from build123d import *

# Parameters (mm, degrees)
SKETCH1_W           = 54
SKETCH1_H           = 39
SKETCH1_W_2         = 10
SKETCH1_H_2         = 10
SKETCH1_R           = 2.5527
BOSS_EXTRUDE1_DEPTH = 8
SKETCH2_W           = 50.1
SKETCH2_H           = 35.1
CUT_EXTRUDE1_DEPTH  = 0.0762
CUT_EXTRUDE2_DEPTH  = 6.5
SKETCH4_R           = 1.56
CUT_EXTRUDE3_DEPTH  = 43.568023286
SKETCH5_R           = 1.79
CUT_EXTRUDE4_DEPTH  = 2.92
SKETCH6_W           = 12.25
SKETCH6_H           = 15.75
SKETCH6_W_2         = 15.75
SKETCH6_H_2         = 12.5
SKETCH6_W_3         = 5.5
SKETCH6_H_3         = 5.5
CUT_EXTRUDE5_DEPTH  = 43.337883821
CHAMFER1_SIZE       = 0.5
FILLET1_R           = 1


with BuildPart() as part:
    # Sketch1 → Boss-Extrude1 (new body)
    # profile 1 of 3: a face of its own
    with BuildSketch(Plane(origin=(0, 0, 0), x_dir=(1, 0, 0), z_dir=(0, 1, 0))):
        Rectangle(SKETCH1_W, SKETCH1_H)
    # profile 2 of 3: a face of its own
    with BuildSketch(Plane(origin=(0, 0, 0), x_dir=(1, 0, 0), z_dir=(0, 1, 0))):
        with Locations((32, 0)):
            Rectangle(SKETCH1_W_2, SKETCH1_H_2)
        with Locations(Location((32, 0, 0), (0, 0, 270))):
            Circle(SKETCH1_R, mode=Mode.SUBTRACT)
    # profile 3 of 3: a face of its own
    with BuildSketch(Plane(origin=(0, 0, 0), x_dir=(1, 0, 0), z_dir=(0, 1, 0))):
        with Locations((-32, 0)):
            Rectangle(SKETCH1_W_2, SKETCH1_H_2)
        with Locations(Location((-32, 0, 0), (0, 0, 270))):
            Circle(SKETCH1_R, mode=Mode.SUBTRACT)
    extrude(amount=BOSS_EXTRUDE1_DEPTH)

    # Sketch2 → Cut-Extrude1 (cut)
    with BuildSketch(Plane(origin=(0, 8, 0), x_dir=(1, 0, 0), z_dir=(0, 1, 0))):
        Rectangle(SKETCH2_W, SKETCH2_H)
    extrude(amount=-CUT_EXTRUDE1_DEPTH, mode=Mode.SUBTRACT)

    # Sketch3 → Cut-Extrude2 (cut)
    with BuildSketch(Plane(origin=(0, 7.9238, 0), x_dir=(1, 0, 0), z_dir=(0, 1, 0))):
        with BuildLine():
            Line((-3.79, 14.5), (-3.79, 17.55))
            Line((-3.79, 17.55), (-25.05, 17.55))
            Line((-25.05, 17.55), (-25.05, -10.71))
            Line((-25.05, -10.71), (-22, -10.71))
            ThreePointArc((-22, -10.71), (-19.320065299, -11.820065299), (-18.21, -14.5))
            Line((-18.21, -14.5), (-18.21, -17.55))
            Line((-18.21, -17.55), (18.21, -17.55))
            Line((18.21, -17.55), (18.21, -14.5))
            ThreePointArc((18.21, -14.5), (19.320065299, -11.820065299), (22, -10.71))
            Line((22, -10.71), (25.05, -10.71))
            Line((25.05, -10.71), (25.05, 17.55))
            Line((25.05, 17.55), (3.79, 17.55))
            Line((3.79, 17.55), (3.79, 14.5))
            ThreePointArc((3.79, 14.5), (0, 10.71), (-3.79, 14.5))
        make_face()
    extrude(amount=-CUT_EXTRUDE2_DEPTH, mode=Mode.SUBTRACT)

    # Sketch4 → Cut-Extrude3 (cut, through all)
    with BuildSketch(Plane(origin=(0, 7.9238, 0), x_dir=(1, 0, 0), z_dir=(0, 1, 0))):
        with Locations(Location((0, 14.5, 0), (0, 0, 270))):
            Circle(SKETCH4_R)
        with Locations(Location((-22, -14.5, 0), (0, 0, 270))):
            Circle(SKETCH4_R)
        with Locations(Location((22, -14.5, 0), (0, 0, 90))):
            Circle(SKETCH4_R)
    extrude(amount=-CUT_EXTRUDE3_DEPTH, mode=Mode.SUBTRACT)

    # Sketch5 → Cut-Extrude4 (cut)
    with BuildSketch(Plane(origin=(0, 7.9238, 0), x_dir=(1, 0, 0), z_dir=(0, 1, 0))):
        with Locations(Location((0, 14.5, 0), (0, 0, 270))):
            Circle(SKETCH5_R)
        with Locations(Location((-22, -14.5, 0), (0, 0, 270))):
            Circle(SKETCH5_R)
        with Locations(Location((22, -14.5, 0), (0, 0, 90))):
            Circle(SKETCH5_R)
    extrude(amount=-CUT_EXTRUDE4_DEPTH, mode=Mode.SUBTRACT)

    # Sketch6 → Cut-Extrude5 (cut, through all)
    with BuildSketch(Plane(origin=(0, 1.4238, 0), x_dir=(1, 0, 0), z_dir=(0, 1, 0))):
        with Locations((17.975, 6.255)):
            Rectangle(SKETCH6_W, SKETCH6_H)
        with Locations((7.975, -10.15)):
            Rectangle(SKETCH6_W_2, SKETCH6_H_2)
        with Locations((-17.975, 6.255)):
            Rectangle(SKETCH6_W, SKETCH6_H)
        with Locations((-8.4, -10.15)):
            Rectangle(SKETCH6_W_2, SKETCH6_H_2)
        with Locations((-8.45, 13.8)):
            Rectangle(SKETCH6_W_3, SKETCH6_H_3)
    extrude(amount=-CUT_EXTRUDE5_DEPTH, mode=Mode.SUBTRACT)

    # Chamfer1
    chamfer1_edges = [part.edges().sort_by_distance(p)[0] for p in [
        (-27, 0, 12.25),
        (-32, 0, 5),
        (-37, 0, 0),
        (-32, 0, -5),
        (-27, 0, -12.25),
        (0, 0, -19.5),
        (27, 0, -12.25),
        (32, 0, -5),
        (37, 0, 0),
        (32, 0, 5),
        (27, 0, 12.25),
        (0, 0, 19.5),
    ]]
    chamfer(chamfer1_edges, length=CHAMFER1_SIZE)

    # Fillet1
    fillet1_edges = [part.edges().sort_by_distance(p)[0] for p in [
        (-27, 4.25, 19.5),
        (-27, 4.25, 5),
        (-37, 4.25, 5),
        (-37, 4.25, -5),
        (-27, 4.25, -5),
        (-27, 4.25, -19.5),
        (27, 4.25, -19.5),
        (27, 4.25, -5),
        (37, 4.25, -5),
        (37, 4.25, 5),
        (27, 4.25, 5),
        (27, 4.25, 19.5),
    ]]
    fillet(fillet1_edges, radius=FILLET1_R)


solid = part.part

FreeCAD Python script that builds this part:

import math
import FreeCAD as App
import Part
import Sketcher
Q = App.Units.Quantity


def edges_at(feature, points):
    """Names of the edges that pass closest to the given points."""
    edges = feature.Shape.Edges
    near = lambda p: min(range(len(edges)), key=lambda i: edges[i].distToShape(Part.Vertex(*p))[0])
    return sorted({f"Edge{near(p) + 1}" for p in points})


def add_polygon(sketch, points):
    """Adds a closed chain of lines whose ends are joined by coincident constraints."""
    first, n = sketch.GeometryCount, len(points)
    for a, b in zip(points, points[1:] + points[:1]):
        sketch.addGeometry(Part.LineSegment(App.Vector(*a, 0), App.Vector(*b, 0)), False)
    for i in range(n):
        sketch.addConstraint(Sketcher.Constraint("Coincident", first + i, 2, first + (i + 1) % n, 1))

doc = App.newDocument("Part")
params = doc.addObject("Spreadsheet::Sheet", "Params")
for row, (alias, value) in enumerate([
    ("sketch1_width", "54 mm"),
    ("sketch1_width2", "10 mm"),
    ("sketch1_height", "14.5 mm"),
    ("pad1_length", "8 mm"),
    ("sketch2_width", "50.1 mm"),
    ("sketch2_height", "35.1 mm"),
    ("pocket1_length", "0.0762 mm"),
    ("sketch3_radius", "3.79 mm"),
    ("sketch3_width", "21.26 mm"),
    ("pocket2_length", "6.5 mm"),
    ("sketch4_diameter", "3.12 mm"),
    ("sketch5_diameter", "3.58 mm"),
    ("pocket4_length", "2.92 mm"),
    ("sketch6_width", "5.5 mm"),
    ("sketch6_height", "12.5 mm"),
    ("sketch6_width2", "12.25 mm"),
    ("chamfer_size", "0.5 mm"),
    ("fillet_radius", "1 mm"),
], start=1):
    params.set(f"A{row}", alias)
    params.set(f"B{row}", "=" + value)
    params.setAlias(f"B{row}", alias)

body = doc.addObject("PartDesign::Body", "Body")

# Sketch on XZ plane
sketch1 = body.newObject("Sketcher::SketchObject", "Sketch")
sketch1.AttachmentSupport = (doc.getObject("XZ_Plane"), [""])
sketch1.MapMode = "FlatFace"
add_polygon(sketch1, [(-27, 5), (-27, 19.5), (27, 19.5), (27, 5), (37, 5), (37, -5), (27, -5), (27, -19.5), (-27, -19.5), (-27, -5), (-37, -5), (-37, 5)])  # lines 0-11
sketch1.addGeometry(Part.Circle(App.Vector(-32, 0, 0), App.Vector(0, 0, 1), 2.6), False)  # 12
sketch1.addGeometry(Part.Circle(App.Vector(32, 0, 0), App.Vector(0, 0, 1), 2.6), False)  # 13
sketch1.addConstraint(Sketcher.Constraint("Vertical", 0))
sketch1.addConstraint(Sketcher.Constraint("Horizontal", 1))
sketch1.addConstraint(Sketcher.Constraint("Vertical", 2))
sketch1.addConstraint(Sketcher.Constraint("Horizontal", 3))
sketch1.addConstraint(Sketcher.Constraint("Vertical", 4))
sketch1.addConstraint(Sketcher.Constraint("Horizontal", 5))
sketch1.addConstraint(Sketcher.Constraint("Vertical", 6))
sketch1.addConstraint(Sketcher.Constraint("Horizontal", 7))
sketch1.addConstraint(Sketcher.Constraint("Vertical", 8))
sketch1.addConstraint(Sketcher.Constraint("Horizontal", 9))
sketch1.addConstraint(Sketcher.Constraint("Vertical", 10))
sketch1.addConstraint(Sketcher.Constraint("Horizontal", 11))
sketch1.addConstraint(Sketcher.Constraint("Equal", 12, 13))
sketch1.addConstraint(Sketcher.Constraint("Symmetric", 12, 3, 13, 3, -1, 1))
sketch1.addConstraint(Sketcher.Constraint("Symmetric", 0, 2, 6, 2, -1, 1))
sketch1.addConstraint(Sketcher.Constraint("Symmetric", 2, 2, 8, 2, -1, 1))
sketch1.addConstraint(Sketcher.Constraint("Symmetric", 4, 2, 10, 2, -1, 1))
sketch1.addConstraint(Sketcher.Constraint("Symmetric", 5, 2, 8, 2, -2))
sketch1.addConstraint(Sketcher.Constraint("PointOnObject", 12, 3, -1))
sketch1.addConstraint(Sketcher.Constraint("Equal", 11, 4))
sketch1.addConstraint(Sketcher.Constraint("DistanceX", 1, 1, 1, 2, Q("54 mm")))
sketch1.addConstraint(Sketcher.Constraint("DistanceX", 3, 1, 3, 2, Q("10 mm")))
sketch1.addConstraint(Sketcher.Constraint("DistanceY", 0, 1, 0, 2, Q("14.5 mm")))
sketch1.addConstraint(Sketcher.Constraint("DistanceX", 12, 3, -1, 1, Q("32 mm")))
sketch1.addConstraint(Sketcher.Constraint("Diameter", 12, Q("5.1054 mm")))
sketch1.setExpression("Constraints[32]", "Params.sketch1_width")
sketch1.setExpression("Constraints[33]", "Params.sketch1_width2")
sketch1.setExpression("Constraints[34]", "Params.sketch1_height")
pad1 = body.newObject("PartDesign::Pad", "Pad")
pad1.Profile = sketch1
pad1.setExpression("Length", "Params.pad1_length")
pad1.Reversed = True

# Sketch on XZ plane
sketch2 = body.newObject("Sketcher::SketchObject", "Sketch001")
sketch2.AttachmentSupport = (doc.getObject("XZ_Plane"), [""])
sketch2.MapMode = "FlatFace"
sketch2.AttachmentOffset = App.Placement(App.Vector(0, 0, -8), App.Rotation())
add_polygon(sketch2, [(-25, -18), (-25, 18), (25, 18), (25, -18)])  # lines 0-3
sketch2.addConstraint(Sketcher.Constraint("Vertical", 0))
sketch2.addConstraint(Sketcher.Constraint("Horizontal", 1))
sketch2.addConstraint(Sketcher.Constraint("Vertical", 2))
sketch2.addConstraint(Sketcher.Constraint("Horizontal", 3))
sketch2.addConstraint(Sketcher.Constraint("Symmetric", 0, 2, 2, 2, -1, 1))
sketch2.addConstraint(Sketcher.Constraint("DistanceX", 1, 1, 1, 2, Q("50.1 mm")))
sketch2.addConstraint(Sketcher.Constraint("DistanceY", 0, 1, 0, 2, Q("35.1 mm")))
sketch2.setExpression("Constraints[9]", "Params.sketch2_width")
sketch2.setExpression("Constraints[10]", "Params.sketch2_height")
pocket1 = body.newObject("PartDesign::Pocket", "Pocket")
pocket1.Profile = sketch2
pocket1.setExpression("Length", "Params.pocket1_length")
pocket1.Reversed = True

# Sketch on XZ plane
sketch3 = body.newObject("Sketcher::SketchObject", "Sketch002")
sketch3.AttachmentSupport = (doc.getObject("XZ_Plane"), [""])
sketch3.MapMode = "FlatFace"
sketch3.AttachmentOffset = App.Placement(App.Vector(0, 0, -7.9238), App.Rotation())
sketch3.addGeometry(Part.LineSegment(App.Vector(-3.8, -14.5, 0), App.Vector(-3.8, -17.6, 0)), False)
sketch3.addGeometry(Part.LineSegment(App.Vector(-3.8, -17.6, 0), App.Vector(-25.1, -17.6, 0)), False)
sketch3.addGeometry(Part.LineSegment(App.Vector(-25.1, -17.6, 0), App.Vector(-25.1, 10.7, 0)), False)
sketch3.addGeometry(Part.LineSegment(App.Vector(-25.1, 10.7, 0), App.Vector(-22, 10.7, 0)), False)
sketch3.addGeometry(Part.ArcOfCircle(Part.Circle(App.Vector(-22, 14.5, 0), App.Vector(0, 0, 1), 3.8), math.radians(-90), math.radians(0)), False)
sketch3.addGeometry(Part.LineSegment(App.Vector(-18.2, 14.5, 0), App.Vector(-18.2, 17.6, 0)), False)
sketch3.addGeometry(Part.LineSegment(App.Vector(-18.2, 17.6, 0), App.Vector(18.2, 17.6, 0)), False)
sketch3.addGeometry(Part.LineSegment(App.Vector(18.2, 17.6, 0), App.Vector(18.2, 14.5, 0)), False)
sketch3.addGeometry(Part.ArcOfCircle(Part.Circle(App.Vector(22, 14.5, 0), App.Vector(0, 0, 1), 3.8), math.radians(180), math.radians(270)), False)
sketch3.addGeometry(Part.LineSegment(App.Vector(22, 10.7, 0), App.Vector(25.1, 10.7, 0)), False)
sketch3.addGeometry(Part.LineSegment(App.Vector(25.1, 10.7, 0), App.Vector(25.1, -17.6, 0)), False)
sketch3.addGeometry(Part.LineSegment(App.Vector(25.1, -17.6, 0), App.Vector(3.8, -17.6, 0)), False)
sketch3.addGeometry(Part.LineSegment(App.Vector(3.8, -17.6, 0), App.Vector(3.8, -14.5, 0)), False)
sketch3.addGeometry(Part.ArcOfCircle(Part.Circle(App.Vector(0, -14.5, 0), App.Vector(0, 0, 1), 3.8), math.radians(0), math.radians(180)), False)
sketch3.addConstraint(Sketcher.Constraint("Coincident", 0, 2, 1, 1))
sketch3.addConstraint(Sketcher.Constraint("Coincident", 1, 2, 2, 1))
sketch3.addConstraint(Sketcher.Constraint("Coincident", 2, 2, 3, 1))
sketch3.addConstraint(Sketcher.Constraint("Tangent", 3, 2, 4, 1))
sketch3.addConstraint(Sketcher.Constraint("Tangent", 4, 2, 5, 1))
sketch3.addConstraint(Sketcher.Constraint("Coincident", 5, 2, 6, 1))
sketch3.addConstraint(Sketcher.Constraint("Coincident", 6, 2, 7, 1))
sketch3.addConstraint(Sketcher.Constraint("Tangent", 7, 2, 8, 1))
sketch3.addConstraint(Sketcher.Constraint("Tangent", 8, 2, 9, 1))
sketch3.addConstraint(Sketcher.Constraint("Coincident", 9, 2, 10, 1))
sketch3.addConstraint(Sketcher.Constraint("Coincident", 10, 2, 11, 1))
sketch3.addConstraint(Sketcher.Constraint("Coincident", 11, 2, 12, 1))
sketch3.addConstraint(Sketcher.Constraint("Tangent", 12, 2, 13, 1))
sketch3.addConstraint(Sketcher.Constraint("Tangent", 13, 2, 0, 1))
sketch3.addConstraint(Sketcher.Constraint("Vertical", 0))
sketch3.addConstraint(Sketcher.Constraint("Horizontal", 1))
sketch3.addConstraint(Sketcher.Constraint("Vertical", 2))
sketch3.addConstraint(Sketcher.Constraint("Horizontal", 3))
sketch3.addConstraint(Sketcher.Constraint("Vertical", 5))
sketch3.addConstraint(Sketcher.Constraint("Horizontal", 6))
sketch3.addConstraint(Sketcher.Constraint("Vertical", 7))
sketch3.addConstraint(Sketcher.Constraint("Horizontal", 9))
sketch3.addConstraint(Sketcher.Constraint("Vertical", 10))
sketch3.addConstraint(Sketcher.Constraint("Horizontal", 11))
sketch3.addConstraint(Sketcher.Constraint("Vertical", 12))
sketch3.addConstraint(Sketcher.Constraint("Equal", 4, 8))
sketch3.addConstraint(Sketcher.Constraint("Equal", 8, 13))
sketch3.addConstraint(Sketcher.Constraint("Symmetric", 4, 3, 8, 3, -2))
sketch3.addConstraint(Sketcher.Constraint("Symmetric", 1, 2, 10, 2, -2))
sketch3.addConstraint(Sketcher.Constraint("PointOnObject", 13, 3, -2))
sketch3.addConstraint(Sketcher.Constraint("Equal", 9, 0))
sketch3.addConstraint(Sketcher.Constraint("Equal", 0, 5))
sketch3.addConstraint(Sketcher.Constraint("Radius", 4, Q("3.79 mm")))
sketch3.addConstraint(Sketcher.Constraint("DistanceX", 4, 3, -1, 1, Q("22 mm")))
sketch3.addConstraint(Sketcher.Constraint("DistanceY", 13, 3, 4, 3, Q("29 mm")))
sketch3.addConstraint(Sketcher.Constraint("DistanceX", 1, 2, 1, 1, Q("21.26 mm")))
sketch3.addConstraint(Sketcher.Constraint("DistanceY", -1, 1, 4, 3, Q("14.5 mm")))
sketch3.setExpression("Constraints[32]", "Params.sketch3_radius")
sketch3.setExpression("Constraints[35]", "Params.sketch3_width")
pocket2 = body.newObject("PartDesign::Pocket", "Pocket001")
pocket2.Profile = sketch3
pocket2.setExpression("Length", "Params.pocket2_length")
pocket2.Reversed = True

# Sketch on XZ plane
sketch4 = body.newObject("Sketcher::SketchObject", "Sketch003")
sketch4.AttachmentSupport = (doc.getObject("XZ_Plane"), [""])
sketch4.MapMode = "FlatFace"
sketch4.AttachmentOffset = App.Placement(App.Vector(0, 0, -7.9238), App.Rotation())
sketch4.addGeometry(Part.Circle(App.Vector(0, -14.5, 0), App.Vector(0, 0, 1), 1.6), False)
sketch4.addGeometry(Part.Circle(App.Vector(-22, 14.5, 0), App.Vector(0, 0, 1), 1.6), False)
sketch4.addGeometry(Part.Circle(App.Vector(22, 14.5, 0), App.Vector(0, 0, 1), 1.6), False)
sketch4.addConstraint(Sketcher.Constraint("Equal", 0, 1))
sketch4.addConstraint(Sketcher.Constraint("Equal", 1, 2))
sketch4.addConstraint(Sketcher.Constraint("Symmetric", 1, 3, 2, 3, -2))
sketch4.addConstraint(Sketcher.Constraint("PointOnObject", 0, 3, -2))
sketch4.addConstraint(Sketcher.Constraint("Diameter", 0, Q("3.12 mm")))
sketch4.addConstraint(Sketcher.Constraint("DistanceX", 1, 3, -1, 1, Q("22 mm")))
sketch4.addConstraint(Sketcher.Constraint("DistanceY", 0, 3, 1, 3, Q("29 mm")))
sketch4.addConstraint(Sketcher.Constraint("DistanceY", 0, 3, -1, 1, Q("14.5 mm")))
sketch4.setExpression("Constraints[4]", "Params.sketch4_diameter")
pocket3 = body.newObject("PartDesign::Pocket", "Pocket002")
pocket3.Profile = sketch4
pocket3.Type = "ThroughAll"
pocket3.Reversed = True

# Sketch on XZ plane
sketch5 = body.newObject("Sketcher::SketchObject", "Sketch004")
sketch5.AttachmentSupport = (doc.getObject("XZ_Plane"), [""])
sketch5.MapMode = "FlatFace"
sketch5.AttachmentOffset = App.Placement(App.Vector(0, 0, -7.9238), App.Rotation())
sketch5.addGeometry(Part.Circle(App.Vector(0, -14.5, 0), App.Vector(0, 0, 1), 1.8), False)
sketch5.addGeometry(Part.Circle(App.Vector(-22, 14.5, 0), App.Vector(0, 0, 1), 1.8), False)
sketch5.addGeometry(Part.Circle(App.Vector(22, 14.5, 0), App.Vector(0, 0, 1), 1.8), False)
sketch5.addConstraint(Sketcher.Constraint("Equal", 0, 1))
sketch5.addConstraint(Sketcher.Constraint("Equal", 1, 2))
sketch5.addConstraint(Sketcher.Constraint("Symmetric", 1, 3, 2, 3, -2))
sketch5.addConstraint(Sketcher.Constraint("PointOnObject", 0, 3, -2))
sketch5.addConstraint(Sketcher.Constraint("Diameter", 0, Q("3.58 mm")))
sketch5.addConstraint(Sketcher.Constraint("DistanceX", 1, 3, -1, 1, Q("22 mm")))
sketch5.addConstraint(Sketcher.Constraint("DistanceY", 0, 3, 1, 3, Q("29 mm")))
sketch5.addConstraint(Sketcher.Constraint("DistanceY", 0, 3, -1, 1, Q("14.5 mm")))
sketch5.setExpression("Constraints[4]", "Params.sketch5_diameter")
pocket4 = body.newObject("PartDesign::Pocket", "Pocket003")
pocket4.Profile = sketch5
pocket4.setExpression("Length", "Params.pocket4_length")
pocket4.Reversed = True

# Sketch on XZ plane
sketch6 = body.newObject("Sketcher::SketchObject", "Sketch005")
sketch6.AttachmentSupport = (doc.getObject("XZ_Plane"), [""])
sketch6.MapMode = "FlatFace"
sketch6.AttachmentOffset = App.Placement(App.Vector(0, 0, -1.4238), App.Rotation())
add_polygon(sketch6, [(12, -14), (12, 2), (24, 2), (24, -14)])  # lines 0-3
add_polygon(sketch6, [(0, 4), (0, 16), (16, 16), (16, 4)])  # lines 4-7
add_polygon(sketch6, [(-24, -14), (-24, 2), (-12, 2), (-12, -14)])  # lines 8-11
add_polygon(sketch6, [(-16, 4), (-16, 16), (-1, 16), (-1, 4)])  # lines 12-15
add_polygon(sketch6, [(-11, -17), (-11, -11), (-6, -11), (-6, -17)])  # lines 16-19
sketch6.addConstraint(Sketcher.Constraint("Vertical", 0))
sketch6.addConstraint(Sketcher.Constraint("Horizontal", 1))
sketch6.addConstraint(Sketcher.Constraint("Vertical", 2))
sketch6.addConstraint(Sketcher.Constraint("Horizontal", 3))
sketch6.addConstraint(Sketcher.Constraint("Vertical", 4))
sketch6.addConstraint(Sketcher.Constraint("Horizontal", 5))
sketch6.addConstraint(Sketcher.Constraint("Vertical", 6))
sketch6.addConstraint(Sketcher.Constraint("Horizontal", 7))
sketch6.addConstraint(Sketcher.Constraint("Vertical", 8))
sketch6.addConstraint(Sketcher.Constraint("Horizontal", 9))
sketch6.addConstraint(Sketcher.Constraint("Vertical", 10))
sketch6.addConstraint(Sketcher.Constraint("Horizontal", 11))
sketch6.addConstraint(Sketcher.Constraint("Vertical", 12))
sketch6.addConstraint(Sketcher.Constraint("Horizontal", 13))
sketch6.addConstraint(Sketcher.Constraint("Vertical", 14))
sketch6.addConstraint(Sketcher.Constraint("Horizontal", 15))
sketch6.addConstraint(Sketcher.Constraint("Vertical", 16))
sketch6.addConstraint(Sketcher.Constraint("Horizontal", 17))
sketch6.addConstraint(Sketcher.Constraint("Vertical", 18))
sketch6.addConstraint(Sketcher.Constraint("Horizontal", 19))
sketch6.addConstraint(Sketcher.Constraint("Symmetric", 1, 2, 8, 2, -2))
sketch6.addConstraint(Sketcher.Constraint("Symmetric", 3, 2, 10, 2, -2))
sketch6.addConstraint(Sketcher.Constraint("Horizontal", 5, 2, 12, 2))
sketch6.addConstraint(Sketcher.Constraint("Horizontal", 7, 2, 14, 2))
sketch6.addConstraint(Sketcher.Constraint("Equal", 7, 13))
sketch6.addConstraint(Sketcher.Constraint("Equal", 15, 0))
sketch6.addConstraint(Sketcher.Constraint("Equal", 19, 16))
sketch6.addConstraint(Sketcher.Constraint("DistanceX", 17, 1, 17, 2, Q("5.5 mm")))
sketch6.addConstraint(Sketcher.Constraint("DistanceY", 4, 1, 4, 2, Q("12.5 mm")))
sketch6.addConstraint(Sketcher.Constraint("DistanceX", 4, 2, 1, 2, Q("24 mm")))
sketch6.addConstraint(Sketcher.Constraint("DistanceX", 0, 2, 5, 2, Q("4 mm")))
sketch6.addConstraint(Sketcher.Constraint("DistanceX", 1, 1, 1, 2, Q("12.25 mm")))
sketch6.addConstraint(Sketcher.Constraint("DistanceX", -1, 1, 1, 2, Q("24.1 mm")))
sketch6.addConstraint(Sketcher.Constraint("DistanceY", -1, 1, 4, 2, Q("16.4 mm")))
sketch6.addConstraint(Sketcher.Constraint("DistanceX", 16, 2, -1, 1, Q("11.2 mm")))
sketch6.addConstraint(Sketcher.Constraint("DistanceY", -1, 1, 0, 2, Q("1.62 mm")))
sketch6.addConstraint(Sketcher.Constraint("DistanceY", 16, 2, -1, 1, Q("11.05 mm")))
sketch6.addConstraint(Sketcher.Constraint("DistanceX", 12, 2, -1, 1, Q("16.275 mm")))
sketch6.setExpression("Constraints[47]", "Params.sketch6_width")
sketch6.setExpression("Constraints[48]", "Params.sketch6_height")
sketch6.setExpression("Constraints[51]", "Params.sketch6_width2")
pocket5 = body.newObject("PartDesign::Pocket", "Pocket004")
pocket5.Profile = sketch6
pocket5.Type = "ThroughAll"
pocket5.Reversed = True
doc.recompute()

chamfer = body.newObject("PartDesign::Chamfer", "Chamfer")
chamfer.Base = (pocket5, edges_at(pocket5, [
    (-27, 0, 12.25),
    (-32, 0, 5),
    (-37, 0, 0),
    (-32, 0, -5),
    (-27, 0, -12.25),
    (0, 0, -19.5),
    (27, 0, -12.25),
    (32, 0, -5),
    (37, 0, 0),
    (32, 0, 5),
    (27, 0, 12.25),
    (0, 0, 19.5),
]))
chamfer.setExpression("Size", "Params.chamfer_size")
doc.recompute()

fillet = body.newObject("PartDesign::Fillet", "Fillet")
fillet.Base = (chamfer, edges_at(chamfer, [
    (-27, 4.25, 19.5),
    (-27, 4.25, 5),
    (-37, 4.25, 5),
    (-37, 4.25, -5),
    (-27, 4.25, -5),
    (-27, 4.25, -19.5),
    (27, 4.25, -19.5),
    (27, 4.25, -5),
    (37, 4.25, -5),
    (37, 4.25, 5),
    (27, 4.25, 5),
    (27, 4.25, 19.5),
]))
fillet.setExpression("Radius", "Params.fillet_radius")

doc.recompute()
